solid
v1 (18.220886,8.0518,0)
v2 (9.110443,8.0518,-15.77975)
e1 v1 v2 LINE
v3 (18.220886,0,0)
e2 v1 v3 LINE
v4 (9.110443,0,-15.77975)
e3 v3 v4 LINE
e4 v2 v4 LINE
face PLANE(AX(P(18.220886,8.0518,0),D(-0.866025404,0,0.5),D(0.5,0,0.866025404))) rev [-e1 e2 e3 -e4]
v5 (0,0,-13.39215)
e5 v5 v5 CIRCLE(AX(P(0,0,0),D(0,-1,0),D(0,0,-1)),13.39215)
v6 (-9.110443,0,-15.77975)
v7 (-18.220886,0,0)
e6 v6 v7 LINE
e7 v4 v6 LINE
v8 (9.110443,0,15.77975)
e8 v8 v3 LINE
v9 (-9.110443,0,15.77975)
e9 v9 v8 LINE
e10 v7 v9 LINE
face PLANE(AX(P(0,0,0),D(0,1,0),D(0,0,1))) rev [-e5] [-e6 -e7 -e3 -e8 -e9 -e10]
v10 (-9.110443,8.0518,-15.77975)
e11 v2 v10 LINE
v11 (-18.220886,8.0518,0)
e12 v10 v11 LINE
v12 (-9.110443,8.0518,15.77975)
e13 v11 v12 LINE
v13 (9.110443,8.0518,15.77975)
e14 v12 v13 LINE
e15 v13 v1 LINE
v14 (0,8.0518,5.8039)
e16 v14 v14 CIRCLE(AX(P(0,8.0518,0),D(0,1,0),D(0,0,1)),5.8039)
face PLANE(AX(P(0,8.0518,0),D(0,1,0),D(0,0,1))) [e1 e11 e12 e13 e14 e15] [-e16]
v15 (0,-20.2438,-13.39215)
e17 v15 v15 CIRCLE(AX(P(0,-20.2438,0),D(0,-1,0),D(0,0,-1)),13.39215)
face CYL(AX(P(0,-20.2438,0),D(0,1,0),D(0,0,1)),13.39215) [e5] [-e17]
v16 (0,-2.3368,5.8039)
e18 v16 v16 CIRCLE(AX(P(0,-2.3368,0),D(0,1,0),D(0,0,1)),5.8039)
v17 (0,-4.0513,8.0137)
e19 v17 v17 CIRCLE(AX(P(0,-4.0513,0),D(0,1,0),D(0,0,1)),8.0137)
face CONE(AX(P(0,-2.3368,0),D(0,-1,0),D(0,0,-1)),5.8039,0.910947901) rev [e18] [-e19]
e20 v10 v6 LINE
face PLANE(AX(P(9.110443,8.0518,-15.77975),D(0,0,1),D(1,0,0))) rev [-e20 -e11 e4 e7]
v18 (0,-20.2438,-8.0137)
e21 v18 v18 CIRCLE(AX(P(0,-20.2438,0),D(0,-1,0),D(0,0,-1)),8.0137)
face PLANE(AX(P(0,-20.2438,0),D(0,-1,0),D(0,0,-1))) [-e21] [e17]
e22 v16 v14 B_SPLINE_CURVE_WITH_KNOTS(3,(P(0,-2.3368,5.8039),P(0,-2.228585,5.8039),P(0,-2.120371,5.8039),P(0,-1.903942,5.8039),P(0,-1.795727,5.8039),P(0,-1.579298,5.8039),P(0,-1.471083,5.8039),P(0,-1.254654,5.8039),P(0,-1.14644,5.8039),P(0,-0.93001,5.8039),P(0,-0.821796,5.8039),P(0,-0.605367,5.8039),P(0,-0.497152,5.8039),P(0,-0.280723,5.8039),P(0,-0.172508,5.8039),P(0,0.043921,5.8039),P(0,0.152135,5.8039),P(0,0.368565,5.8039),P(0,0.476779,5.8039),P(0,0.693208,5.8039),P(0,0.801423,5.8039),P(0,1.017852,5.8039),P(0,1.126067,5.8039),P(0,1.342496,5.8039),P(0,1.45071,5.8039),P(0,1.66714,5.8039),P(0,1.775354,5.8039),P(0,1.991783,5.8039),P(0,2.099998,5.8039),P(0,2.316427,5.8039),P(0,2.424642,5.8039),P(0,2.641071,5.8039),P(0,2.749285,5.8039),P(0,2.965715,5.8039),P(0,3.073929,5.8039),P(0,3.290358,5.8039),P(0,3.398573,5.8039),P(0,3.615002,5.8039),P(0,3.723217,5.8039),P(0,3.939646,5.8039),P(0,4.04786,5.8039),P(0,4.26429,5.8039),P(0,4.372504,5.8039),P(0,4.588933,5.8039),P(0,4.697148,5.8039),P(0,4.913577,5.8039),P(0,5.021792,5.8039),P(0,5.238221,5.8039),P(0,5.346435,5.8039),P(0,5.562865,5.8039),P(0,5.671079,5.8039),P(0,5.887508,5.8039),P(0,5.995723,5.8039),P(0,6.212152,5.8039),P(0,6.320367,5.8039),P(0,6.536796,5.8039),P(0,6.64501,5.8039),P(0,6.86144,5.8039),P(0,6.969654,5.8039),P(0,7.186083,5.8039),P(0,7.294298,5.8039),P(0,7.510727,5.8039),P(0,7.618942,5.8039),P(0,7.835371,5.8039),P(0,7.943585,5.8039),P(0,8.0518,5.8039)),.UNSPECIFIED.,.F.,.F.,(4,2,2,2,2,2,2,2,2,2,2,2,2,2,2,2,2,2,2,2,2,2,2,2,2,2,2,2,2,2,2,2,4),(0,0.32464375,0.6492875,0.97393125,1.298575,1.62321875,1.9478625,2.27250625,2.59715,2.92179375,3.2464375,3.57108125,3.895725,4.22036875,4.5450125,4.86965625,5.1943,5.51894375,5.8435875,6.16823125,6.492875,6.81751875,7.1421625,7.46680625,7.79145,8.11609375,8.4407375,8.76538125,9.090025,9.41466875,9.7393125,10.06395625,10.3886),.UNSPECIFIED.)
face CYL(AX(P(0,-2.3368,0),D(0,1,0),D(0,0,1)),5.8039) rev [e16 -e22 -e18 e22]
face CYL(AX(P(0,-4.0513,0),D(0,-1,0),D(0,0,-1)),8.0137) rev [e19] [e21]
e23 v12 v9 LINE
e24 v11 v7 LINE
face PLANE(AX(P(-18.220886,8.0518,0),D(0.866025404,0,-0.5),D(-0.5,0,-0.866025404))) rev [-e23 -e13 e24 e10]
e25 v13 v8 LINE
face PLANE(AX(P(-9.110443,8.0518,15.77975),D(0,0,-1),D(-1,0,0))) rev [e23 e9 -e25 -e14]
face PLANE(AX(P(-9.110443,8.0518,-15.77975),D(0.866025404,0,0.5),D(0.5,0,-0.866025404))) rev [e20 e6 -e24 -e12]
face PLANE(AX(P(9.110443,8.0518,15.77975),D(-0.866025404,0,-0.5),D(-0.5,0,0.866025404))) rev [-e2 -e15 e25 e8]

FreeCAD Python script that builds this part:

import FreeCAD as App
import Part
import Sketcher
Q = App.Units.Quantity

doc = App.newDocument("Part")
body = doc.addObject("PartDesign::Body", "Body")

# Sketch on XZ plane
sketch1 = body.newObject("Sketcher::SketchObject", "Sketch")
sketch1.AttachmentSupport = (doc.getObject("XZ_Plane"), [""])
sketch1.MapMode = "FlatFace"
sketch1.addGeometry(Part.LineSegment(App.Vector(18, 0, 0), App.Vector(9, -16, 0)), False)
sketch1.addGeometry(Part.LineSegment(App.Vector(9, -16, 0), App.Vector(-9, -16, 0)), False)
sketch1.addGeometry(Part.LineSegment(App.Vector(-9, -16, 0), App.Vector(-18, 0, 0)), False)
sketch1.addGeometry(Part.LineSegment(App.Vector(-18, 0, 0), App.Vector(-9, 16, 0)), False)
sketch1.addGeometry(Part.LineSegment(App.Vector(-9, 16, 0), App.Vector(9, 16, 0)), False)
sketch1.addGeometry(Part.LineSegment(App.Vector(9, 16, 0), App.Vector(18, 0, 0)), False)
sketch1.addConstraint(Sketcher.Constraint("Coincident", 0, 2, 1, 1))
sketch1.addConstraint(Sketcher.Constraint("Coincident", 1, 2, 2, 1))
sketch1.addConstraint(Sketcher.Constraint("Coincident", 2, 2, 3, 1))
sketch1.addConstraint(Sketcher.Constraint("Coincident", 3, 2, 4, 1))
sketch1.addConstraint(Sketcher.Constraint("Coincident", 4, 2, 5, 1))
sketch1.addConstraint(Sketcher.Constraint("Coincident", 5, 2, 0, 1))
sketch1.addConstraint(Sketcher.Constraint("Horizontal", 1))
sketch1.addConstraint(Sketcher.Constraint("Horizontal", 4))
sketch1.addConstraint(Sketcher.Constraint("Symmetric", 0, 2, 3, 2, -1, 1))
sketch1.addConstraint(Sketcher.Constraint("Symmetric", 2, 2, 5, 2, -1, 1))
sketch1.addConstraint(Sketcher.Constraint("PointOnObject", 2, 2, -1))
sketch1.addConstraint(Sketcher.Constraint("Parallel", 2, 5))
sketch1.addConstraint(Sketcher.Constraint("Vertical", 1, 2, 3, 2))
sketch1.addConstraint(Sketcher.Constraint("Angle", 0, Q("-120 deg")))
sketch1.addConstraint(Sketcher.Constraint("DistanceY", 1, 2, 3, 2, Q("1.2425 in")))
sketch1.addConstraint(Sketcher.Constraint("DistanceX", 1, 2, 1, 1, Q("18.220886 mm")))
pad1 = body.newObject("PartDesign::Pad", "Pad")
pad1.Profile = sketch1
pad1.Length = Q("0.317 in")
pad1.Reversed = True

# Sketch on XZ plane
sketch2 = body.newObject("Sketcher::SketchObject", "Sketch001")
sketch2.AttachmentSupport = (doc.getObject("XZ_Plane"), [""])
sketch2.MapMode = "FlatFace"
sketch2.addGeometry(Part.Circle(App.Vector(0, 0, 0), App.Vector(0, 0, 1), 13), False)
sketch2.addConstraint(Sketcher.Constraint("Coincident", 0, 3, -1, 1))
sketch2.addConstraint(Sketcher.Constraint("Diameter", 0, Q("1.0545 in")))
pad2 = body.newObject("PartDesign::Pad", "Pad001")
pad2.Profile = sketch2
pad2.Length = Q("0.797 in")

# Sketch on XZ plane
sketch3 = body.newObject("Sketcher::SketchObject", "Sketch002")
sketch3.AttachmentSupport = (doc.getObject("XZ_Plane"), [""])
sketch3.MapMode = "FlatFace"
sketch3.AttachmentOffset = App.Placement(App.Vector(0, 0, -0.317 * 25.4), App.Rotation())
sketch3.addGeometry(Part.Circle(App.Vector(0, 0, 0), App.Vector(0, 0, 1), 6), False)
sketch3.addConstraint(Sketcher.Constraint("Coincident", 0, 3, -1, 1))
sketch3.addConstraint(Sketcher.Constraint("Diameter", 0, Q("0.457 in")))
pocket1 = body.newObject("PartDesign::Pocket", "Pocket")
pocket1.Profile = sketch3
pocket1.Length = Q("0.409 in")
pocket1.Reversed = True

# Sketch on XZ plane
sketch4 = body.newObject("Sketcher::SketchObject", "Sketch003")
sketch4.AttachmentSupport = (doc.getObject("XZ_Plane"), [""])
sketch4.MapMode = "FlatFace"
sketch4.AttachmentOffset = App.Placement(App.Vector(0, 0, 0.797 * 25.4), App.Rotation())
sketch4.addGeometry(Part.Circle(App.Vector(0, 0, 0), App.Vector(0, 0, 1), 8), False)
sketch4.addConstraint(Sketcher.Constraint("Coincident", 0, 3, -1, 1))
sketch4.addConstraint(Sketcher.Constraint("Diameter", 0, Q("0.631 in")))
pocket2 = body.newObject("PartDesign::Pocket", "Pocket001")
pocket2.Profile = sketch4
pocket2.Length = Q("0.6375 in")

# Sketch on XY plane
sketch5 = body.newObject("Sketcher::SketchObject", "Sketch004")
sketch5.AttachmentSupport = (doc.getObject("XY_Plane"), [""])
sketch5.MapMode = "FlatFace"
sketch5.addGeometry(Part.LineSegment(App.Vector(0, -4.1, 0), App.Vector(0, -2.3, 0)), False)
sketch5.addGeometry(Part.LineSegment(App.Vector(0, -2.3, 0), App.Vector(-5.8, -2.3, 0)), False)
sketch5.addGeometry(Part.LineSegment(App.Vector(-5.8, -2.3, 0), App.Vector(-8, -4.1, 0)), False)
sketch5.addGeometry(Part.LineSegment(App.Vector(-8, -4.1, 0), App.Vector(0, -4.1, 0)), False)
sketch5.addConstraint(Sketcher.Constraint("Coincident", 0, 2, 1, 1))
sketch5.addConstraint(Sketcher.Constraint("Coincident", 1, 2, 2, 1))
sketch5.addConstraint(Sketcher.Constraint("Coincident", 2, 2, 3, 1))
sketch5.addConstraint(Sketcher.Constraint("Coincident", 3, 2, 0, 1))
sketch5.addConstraint(Sketcher.Constraint("Vertical", 0))
sketch5.addConstraint(Sketcher.Constraint("Horizontal", 1))
sketch5.addConstraint(Sketcher.Constraint("Horizontal", 3))
sketch5.addConstraint(Sketcher.Constraint("PointOnObject", 0, 2, -2))
sketch5.addConstraint(Sketcher.Constraint("DistanceX", 1, 2, 1, 1, Q("0.2285 in")))
sketch5.addConstraint(Sketcher.Constraint("DistanceX", 3, 1, 3, 2, Q("0.3155 in")))
sketch5.addConstraint(Sketcher.Constraint("DistanceY", 0, 1, 0, 2, Q("0.0675 in")))
sketch5.addConstraint(Sketcher.Constraint("DistanceY", 0, 2, -1, 1, Q("0.092 in")))
groove = body.newObject("PartDesign::Groove", "Groove")
groove.Profile = sketch5
groove.ReferenceAxis = (sketch5, ["V_Axis"])
groove.Angle = 360

doc.recompute()
